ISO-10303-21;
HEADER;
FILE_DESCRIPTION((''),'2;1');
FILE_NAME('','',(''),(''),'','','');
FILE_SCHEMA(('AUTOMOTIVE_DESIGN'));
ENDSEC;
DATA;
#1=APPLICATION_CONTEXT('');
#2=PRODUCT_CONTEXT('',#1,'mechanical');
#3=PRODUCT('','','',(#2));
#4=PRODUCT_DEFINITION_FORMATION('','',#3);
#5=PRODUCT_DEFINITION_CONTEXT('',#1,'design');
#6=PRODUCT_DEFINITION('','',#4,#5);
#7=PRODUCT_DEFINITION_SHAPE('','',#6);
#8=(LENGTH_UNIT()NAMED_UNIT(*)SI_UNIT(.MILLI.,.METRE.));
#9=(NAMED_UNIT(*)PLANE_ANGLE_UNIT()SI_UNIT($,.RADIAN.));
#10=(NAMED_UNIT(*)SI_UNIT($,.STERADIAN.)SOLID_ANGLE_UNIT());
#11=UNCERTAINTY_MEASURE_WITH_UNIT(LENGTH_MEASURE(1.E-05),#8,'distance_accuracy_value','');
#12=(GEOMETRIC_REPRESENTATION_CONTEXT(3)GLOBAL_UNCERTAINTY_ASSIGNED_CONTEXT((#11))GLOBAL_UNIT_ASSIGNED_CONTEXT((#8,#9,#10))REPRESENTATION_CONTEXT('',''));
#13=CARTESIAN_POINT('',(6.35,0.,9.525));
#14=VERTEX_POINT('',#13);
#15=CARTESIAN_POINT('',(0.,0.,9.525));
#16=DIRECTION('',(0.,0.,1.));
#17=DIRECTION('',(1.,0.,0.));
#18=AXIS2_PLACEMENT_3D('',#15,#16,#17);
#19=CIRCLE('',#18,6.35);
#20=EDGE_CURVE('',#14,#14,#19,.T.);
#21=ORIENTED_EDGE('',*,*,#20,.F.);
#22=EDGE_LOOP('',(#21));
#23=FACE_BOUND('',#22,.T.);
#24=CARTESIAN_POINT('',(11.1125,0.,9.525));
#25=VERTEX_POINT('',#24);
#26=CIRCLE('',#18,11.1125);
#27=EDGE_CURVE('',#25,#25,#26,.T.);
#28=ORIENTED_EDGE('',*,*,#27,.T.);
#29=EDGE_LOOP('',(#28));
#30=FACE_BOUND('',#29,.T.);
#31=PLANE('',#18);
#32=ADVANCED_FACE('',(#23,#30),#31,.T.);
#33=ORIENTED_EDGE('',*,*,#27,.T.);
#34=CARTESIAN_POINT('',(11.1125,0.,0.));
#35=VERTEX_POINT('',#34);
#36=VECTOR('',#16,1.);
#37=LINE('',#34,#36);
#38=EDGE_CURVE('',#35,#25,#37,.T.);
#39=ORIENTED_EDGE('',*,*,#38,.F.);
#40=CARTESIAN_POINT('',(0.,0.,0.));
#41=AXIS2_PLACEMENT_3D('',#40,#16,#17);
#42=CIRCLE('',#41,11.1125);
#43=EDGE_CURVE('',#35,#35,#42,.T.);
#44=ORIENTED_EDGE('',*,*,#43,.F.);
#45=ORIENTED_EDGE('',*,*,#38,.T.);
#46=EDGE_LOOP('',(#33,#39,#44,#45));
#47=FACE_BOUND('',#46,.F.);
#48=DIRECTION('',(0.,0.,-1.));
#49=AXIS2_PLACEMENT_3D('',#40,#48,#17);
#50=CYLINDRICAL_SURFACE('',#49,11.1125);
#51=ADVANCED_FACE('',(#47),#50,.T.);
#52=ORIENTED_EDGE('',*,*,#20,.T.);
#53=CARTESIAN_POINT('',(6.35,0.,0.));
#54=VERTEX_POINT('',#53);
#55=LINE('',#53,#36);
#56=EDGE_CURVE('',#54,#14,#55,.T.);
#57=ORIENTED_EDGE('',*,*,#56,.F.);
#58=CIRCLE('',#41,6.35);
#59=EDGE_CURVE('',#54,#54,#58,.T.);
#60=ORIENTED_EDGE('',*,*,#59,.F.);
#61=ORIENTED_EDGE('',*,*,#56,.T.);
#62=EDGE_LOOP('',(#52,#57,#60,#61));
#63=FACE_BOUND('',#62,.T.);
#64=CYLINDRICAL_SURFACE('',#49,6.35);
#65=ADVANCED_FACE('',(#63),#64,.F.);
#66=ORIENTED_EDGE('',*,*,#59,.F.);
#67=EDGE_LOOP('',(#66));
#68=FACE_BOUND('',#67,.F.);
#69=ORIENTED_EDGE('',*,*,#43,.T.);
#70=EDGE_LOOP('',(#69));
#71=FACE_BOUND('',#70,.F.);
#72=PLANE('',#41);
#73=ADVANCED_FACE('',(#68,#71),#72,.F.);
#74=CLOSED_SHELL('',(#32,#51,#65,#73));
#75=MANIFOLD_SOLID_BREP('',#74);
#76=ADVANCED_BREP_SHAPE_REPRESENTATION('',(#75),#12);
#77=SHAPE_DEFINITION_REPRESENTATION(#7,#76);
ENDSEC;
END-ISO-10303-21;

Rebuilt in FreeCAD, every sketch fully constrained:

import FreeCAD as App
import Part
import Sketcher
from FreeCAD import Vector
Q = App.Units.Quantity

doc = App.newDocument("Part")
body = doc.addObject("PartDesign::Body", "Body")

sketch1 = doc.addObject("Sketcher::SketchObject", "Sketch")
body.addObject(sketch1)
sketch1.AttachmentSupport = (doc.XY_Plane, [""])
sketch1.MapMode = "FlatFace"
sketch1.addGeometry(Part.Circle(Vector(0, 0, 0), Vector(0, 0, 1), 11), False)
sketch1.addGeometry(Part.Circle(Vector(0, 0, 0), Vector(0, 0, 1), 6), False)
sketch1.addConstraint(Sketcher.Constraint("Coincident", 0, 3, -1, 1))
sketch1.addConstraint(Sketcher.Constraint("Coincident", 1, 3, -1, 1))
sketch1.addConstraint(Sketcher.Constraint("Diameter", 1, Q("0.5 in")))
sketch1.addConstraint(Sketcher.Constraint("Diameter", 0, Q("0.875 in")))
pad1 = doc.addObject("PartDesign::Pad", "Pad")
body.addObject(pad1)
pad1.Profile = sketch1
pad1.Length = Q("0.375 in")

doc.recompute()
